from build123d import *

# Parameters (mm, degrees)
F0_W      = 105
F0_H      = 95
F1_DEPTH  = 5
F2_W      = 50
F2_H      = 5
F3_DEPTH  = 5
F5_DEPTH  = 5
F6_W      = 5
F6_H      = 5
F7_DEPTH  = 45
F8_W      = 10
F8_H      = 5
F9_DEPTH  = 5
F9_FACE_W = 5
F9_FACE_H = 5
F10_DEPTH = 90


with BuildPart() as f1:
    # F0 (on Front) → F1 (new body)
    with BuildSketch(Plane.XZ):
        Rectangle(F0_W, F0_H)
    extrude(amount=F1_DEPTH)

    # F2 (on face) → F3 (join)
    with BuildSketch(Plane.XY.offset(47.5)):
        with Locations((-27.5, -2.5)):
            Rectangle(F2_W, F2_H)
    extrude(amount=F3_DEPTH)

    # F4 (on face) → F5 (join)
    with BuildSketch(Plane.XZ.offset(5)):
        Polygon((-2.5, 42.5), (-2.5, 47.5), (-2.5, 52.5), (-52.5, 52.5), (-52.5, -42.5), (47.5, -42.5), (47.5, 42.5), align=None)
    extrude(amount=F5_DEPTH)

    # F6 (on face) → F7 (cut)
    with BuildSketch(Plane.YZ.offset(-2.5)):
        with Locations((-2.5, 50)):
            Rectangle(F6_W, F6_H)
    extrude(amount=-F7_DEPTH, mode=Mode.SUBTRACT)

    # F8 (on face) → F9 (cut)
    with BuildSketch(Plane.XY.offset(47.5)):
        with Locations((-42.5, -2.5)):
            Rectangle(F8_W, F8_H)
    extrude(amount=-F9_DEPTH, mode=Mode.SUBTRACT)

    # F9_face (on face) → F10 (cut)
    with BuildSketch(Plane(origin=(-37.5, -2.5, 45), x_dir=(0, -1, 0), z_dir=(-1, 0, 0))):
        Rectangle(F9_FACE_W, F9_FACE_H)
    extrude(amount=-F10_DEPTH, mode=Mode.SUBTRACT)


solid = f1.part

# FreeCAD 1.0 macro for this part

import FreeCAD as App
import Part
import Sketcher
from FreeCAD import Vector

doc = App.newDocument("Part")
body = doc.addObject("PartDesign::Body", "Body")

sketch1 = doc.addObject("Sketcher::SketchObject", "Sketch")
body.addObject(sketch1)
sketch1.AttachmentSupport = (doc.XZ_Plane, [""])
sketch1.MapMode = "FlatFace"
sketch1.addGeometry(Part.LineSegment(Vector(-52, 48, 0), Vector(-52, -48, 0)), False)
sketch1.addGeometry(Part.LineSegment(Vector(-52, -48, 0), Vector(52, -48, 0)), False)
sketch1.addGeometry(Part.LineSegment(Vector(52, -48, 0), Vector(52, 48, 0)), False)
sketch1.addGeometry(Part.LineSegment(Vector(52, 48, 0), Vector(-52, 48, 0)), False)
sketch1.addConstraint(Sketcher.Constraint("Coincident", 0, 2, 1, 1))
sketch1.addConstraint(Sketcher.Constraint("Coincident", 1, 2, 2, 1))
sketch1.addConstraint(Sketcher.Constraint("Coincident", 2, 2, 3, 1))
sketch1.addConstraint(Sketcher.Constraint("Coincident", 3, 2, 0, 1))
sketch1.addConstraint(Sketcher.Constraint("Vertical", 0))
sketch1.addConstraint(Sketcher.Constraint("Horizontal", 1))
sketch1.addConstraint(Sketcher.Constraint("Vertical", 2))
sketch1.addConstraint(Sketcher.Constraint("Horizontal", 3))
sketch1.addConstraint(Sketcher.Constraint("Symmetric", 0, 2, 2, 2, -1, 1))
sketch1.addConstraint(Sketcher.Constraint("DistanceX", 1, 1, 1, 2, 105.0))
sketch1.addConstraint(Sketcher.Constraint("DistanceY", 0, 2, 0, 1, 95.0))
pad1 = doc.addObject("PartDesign::Pad", "Pad")
body.addObject(pad1)
pad1.Profile = sketch1
pad1.Length = 5

sketch2 = doc.addObject("Sketcher::SketchObject", "Sketch001")
body.addObject(sketch2)
sketch2.AttachmentSupport = (doc.XY_Plane, [""])
sketch2.MapMode = "FlatFace"
sketch2.AttachmentOffset = App.Placement(Vector(0, 0, 47.5), App.Rotation())
sketch2.addGeometry(Part.LineSegment(Vector(-52, 0, 0), Vector(-52, -5, 0)), False)
sketch2.addGeometry(Part.LineSegment(Vector(-52, -5, 0), Vector(-2, -5, 0)), False)
sketch2.addGeometry(Part.LineSegment(Vector(-2, -5, 0), Vector(-2, 0, 0)), False)
sketch2.addGeometry(Part.LineSegment(Vector(-2, 0, 0), Vector(-52, 0, 0)), False)
sketch2.addConstraint(Sketcher.Constraint("Coincident", 0, 2, 1, 1))
sketch2.addConstraint(Sketcher.Constraint("Coincident", 1, 2, 2, 1))
sketch2.addConstraint(Sketcher.Constraint("Coincident", 2, 2, 3, 1))
sketch2.addConstraint(Sketcher.Constraint("Coincident", 3, 2, 0, 1))
sketch2.addConstraint(Sketcher.Constraint("Vertical", 0))
sketch2.addConstraint(Sketcher.Constraint("Horizontal", 1))
sketch2.addConstraint(Sketcher.Constraint("Vertical", 2))
sketch2.addConstraint(Sketcher.Constraint("Horizontal", 3))
sketch2.addConstraint(Sketcher.Constraint("PointOnObject", 2, 2, -1))
sketch2.addConstraint(Sketcher.Constraint("DistanceX", 1, 1, 1, 2, 50.0))
sketch2.addConstraint(Sketcher.Constraint("DistanceY", 0, 2, 0, 1, 5.0))
sketch2.addConstraint(Sketcher.Constraint("DistanceX", 0, 2, -1, 1, 52.5))
pad2 = doc.addObject("PartDesign::Pad", "Pad001")
body.addObject(pad2)
pad2.Profile = sketch2
pad2.Length = 5

sketch3 = doc.addObject("Sketcher::SketchObject", "Sketch002")
body.addObject(sketch3)
sketch3.AttachmentSupport = (doc.XZ_Plane, [""])
sketch3.MapMode = "FlatFace"
sketch3.AttachmentOffset = App.Placement(Vector(0, 0, 5), App.Rotation())
sketch3.addGeometry(Part.LineSegment(Vector(-2, 42, 0), Vector(-2, 52, 0)), False)
sketch3.addGeometry(Part.LineSegment(Vector(-2, 52, 0), Vector(-52, 52, 0)), False)
sketch3.addGeometry(Part.LineSegment(Vector(-52, 52, 0), Vector(-52, -42, 0)), False)
sketch3.addGeometry(Part.LineSegment(Vector(-52, -42, 0), Vector(48, -42, 0)), False)
sketch3.addGeometry(Part.LineSegment(Vector(48, -42, 0), Vector(48, 42, 0)), False)
sketch3.addGeometry(Part.LineSegment(Vector(48, 42, 0), Vector(-2, 42, 0)), False)
sketch3.addConstraint(Sketcher.Constraint("Coincident", 0, 2, 1, 1))
sketch3.addConstraint(Sketcher.Constraint("Coincident", 1, 2, 2, 1))
sketch3.addConstraint(Sketcher.Constraint("Coincident", 2, 2, 3, 1))
sketch3.addConstraint(Sketcher.Constraint("Coincident", 3, 2, 4, 1))
sketch3.addConstraint(Sketcher.Constraint("Coincident", 4, 2, 5, 1))
sketch3.addConstraint(Sketcher.Constraint("Coincident", 5, 2, 0, 1))
sketch3.addConstraint(Sketcher.Constraint("Vertical", 0))
sketch3.addConstraint(Sketcher.Constraint("Horizontal", 1))
sketch3.addConstraint(Sketcher.Constraint("Vertical", 2))
sketch3.addConstraint(Sketcher.Constraint("Horizontal", 3))
sketch3.addConstraint(Sketcher.Constraint("Vertical", 4))
sketch3.addConstraint(Sketcher.Constraint("Horizontal", 5))
sketch3.addConstraint(Sketcher.Constraint("Equal", 1, 5))
sketch3.addConstraint(Sketcher.Constraint("DistanceX", 1, 2, 1, 1, 50.0))
sketch3.addConstraint(Sketcher.Constraint("DistanceY", 0, 1, 0, 2, 10.0))
sketch3.addConstraint(Sketcher.Constraint("DistanceY", 2, 2, 2, 1, 95.0))
sketch3.addConstraint(Sketcher.Constraint("DistanceX", 0, 2, -1, 1, 2.5))
sketch3.addConstraint(Sketcher.Constraint("DistanceY", -1, 1, 0, 2, 52.5))
pad3 = doc.addObject("PartDesign::Pad", "Pad002")
body.addObject(pad3)
pad3.Profile = sketch3
pad3.Length = 5

sketch4 = doc.addObject("Sketcher::SketchObject", "Sketch003")
body.addObject(sketch4)
sketch4.AttachmentSupport = (doc.YZ_Plane, [""])
sketch4.MapMode = "FlatFace"
sketch4.AttachmentOffset = App.Placement(Vector(0, 0, -2.5), App.Rotation())
sketch4.addGeometry(Part.LineSegment(Vector(-5, 52, 0), Vector(-5, 48, 0)), False)
sketch4.addGeometry(Part.LineSegment(Vector(-5, 48, 0), Vector(0, 48, 0)), False)
sketch4.addGeometry(Part.LineSegment(Vector(0, 48, 0), Vector(0, 52, 0)), False)
sketch4.addGeometry(Part.LineSegment(Vector(0, 52, 0), Vector(-5, 52, 0)), False)
sketch4.addConstraint(Sketcher.Constraint("Coincident", 0, 2, 1, 1))
sketch4.addConstraint(Sketcher.Constraint("Coincident", 1, 2, 2, 1))
sketch4.addConstraint(Sketcher.Constraint("Coincident", 2, 2, 3, 1))
sketch4.addConstraint(Sketcher.Constraint("Coincident", 3, 2, 0, 1))
sketch4.addConstraint(Sketcher.Constraint("Vertical", 0))
sketch4.addConstraint(Sketcher.Constraint("Horizontal", 1))
sketch4.addConstraint(Sketcher.Constraint("Vertical", 2))
sketch4.addConstraint(Sketcher.Constraint("Horizontal", 3))
sketch4.addConstraint(Sketcher.Constraint("PointOnObject", 1, 2, -2))
sketch4.addConstraint(Sketcher.Constraint("Equal", 3, 0))
sketch4.addConstraint(Sketcher.Constraint("DistanceX", 1, 1, 1, 2, 5.0))
sketch4.addConstraint(Sketcher.Constraint("DistanceY", -1, 1, 0, 2, 47.5))
pocket1 = doc.addObject("PartDesign::Pocket", "Pocket")
body.addObject(pocket1)
pocket1.Profile = sketch4
pocket1.Length = 45

sketch5 = doc.addObject("Sketcher::SketchObject", "Sketch004")
body.addObject(sketch5)
sketch5.AttachmentSupport = (doc.XY_Plane, [""])
sketch5.MapMode = "FlatFace"
sketch5.AttachmentOffset = App.Placement(Vector(0, 0, 47.5), App.Rotation())
sketch5.addGeometry(Part.LineSegment(Vector(-48, 0, 0), Vector(-48, -5, 0)), False)
sketch5.addGeometry(Part.LineSegment(Vector(-48, -5, 0), Vector(-38, -5, 0)), False)
sketch5.addGeometry(Part.LineSegment(Vector(-38, -5, 0), Vector(-38, 0, 0)), False)
sketch5.addGeometry(Part.LineSegment(Vector(-38, 0, 0), Vector(-48, 0, 0)), False)
sketch5.addConstraint(Sketcher.Constraint("Coincident", 0, 2, 1, 1))
sketch5.addConstraint(Sketcher.Constraint("Coincident", 1, 2, 2, 1))
sketch5.addConstraint(Sketcher.Constraint("Coincident", 2, 2, 3, 1))
sketch5.addConstraint(Sketcher.Constraint("Coincident", 3, 2, 0, 1))
sketch5.addConstraint(Sketcher.Constraint("Vertical", 0))
sketch5.addConstraint(Sketcher.Constraint("Horizontal", 1))
sketch5.addConstraint(Sketcher.Constraint("Vertical", 2))
sketch5.addConstraint(Sketcher.Constraint("Horizontal", 3))
sketch5.addConstraint(Sketcher.Constraint("PointOnObject", 2, 2, -1))
sketch5.addConstraint(Sketcher.Constraint("DistanceX", 1, 1, 1, 2, 10.0))
sketch5.addConstraint(Sketcher.Constraint("DistanceY", 0, 2, 0, 1, 5.0))
sketch5.addConstraint(Sketcher.Constraint("DistanceX", 0, 2, -1, 1, 47.5))
pocket2 = doc.addObject("PartDesign::Pocket", "Pocket001")
body.addObject(pocket2)
pocket2.Profile = sketch5
pocket2.Length = 5

sketch6 = doc.addObject("Sketcher::SketchObject", "Sketch005")
body.addObject(sketch6)
sketch6.AttachmentSupport = (doc.YZ_Plane, [""])
sketch6.MapMode = "FlatFace"
sketch6.AttachmentOffset = App.Placement(Vector(0, 0, -37.5), App.Rotation())
sketch6.addGeometry(Part.LineSegment(Vector(0, 48, 0), Vector(0, 42, 0)), False)
sketch6.addGeometry(Part.LineSegment(Vector(0, 42, 0), Vector(-5, 42, 0)), False)
sketch6.addGeometry(Part.LineSegment(Vector(-5, 42, 0), Vector(-5, 48, 0)), False)
sketch6.addGeometry(Part.LineSegment(Vector(-5, 48, 0), Vector(0, 48, 0)), False)
sketch6.addConstraint(Sketcher.Constraint("Coincident", 0, 2, 1, 1))
sketch6.addConstraint(Sketcher.Constraint("Coincident", 1, 2, 2, 1))
sketch6.addConstraint(Sketcher.Constraint("Coincident", 2, 2, 3, 1))
sketch6.addConstraint(Sketcher.Constraint("Coincident", 3, 2, 0, 1))
sketch6.addConstraint(Sketcher.Constraint("Vertical", 0))
sketch6.addConstraint(Sketcher.Constraint("Horizontal", 1))
sketch6.addConstraint(Sketcher.Constraint("Vertical", 2))
sketch6.addConstraint(Sketcher.Constraint("Horizontal", 3))
sketch6.addConstraint(Sketcher.Constraint("PointOnObject", 0, 2, -2))
sketch6.addConstraint(Sketcher.Constraint("Equal", 3, 0))
sketch6.addConstraint(Sketcher.Constraint("DistanceX", 1, 2, 1, 1, 5.0))
sketch6.addConstraint(Sketcher.Constraint("DistanceY", -1, 1, 0, 2, 42.5))
pocket3 = doc.addObject("PartDesign::Pocket", "Pocket002")
body.addObject(pocket3)
pocket3.Profile = sketch6
pocket3.Length = 90
pocket3.Reversed = True

doc.recompute()
